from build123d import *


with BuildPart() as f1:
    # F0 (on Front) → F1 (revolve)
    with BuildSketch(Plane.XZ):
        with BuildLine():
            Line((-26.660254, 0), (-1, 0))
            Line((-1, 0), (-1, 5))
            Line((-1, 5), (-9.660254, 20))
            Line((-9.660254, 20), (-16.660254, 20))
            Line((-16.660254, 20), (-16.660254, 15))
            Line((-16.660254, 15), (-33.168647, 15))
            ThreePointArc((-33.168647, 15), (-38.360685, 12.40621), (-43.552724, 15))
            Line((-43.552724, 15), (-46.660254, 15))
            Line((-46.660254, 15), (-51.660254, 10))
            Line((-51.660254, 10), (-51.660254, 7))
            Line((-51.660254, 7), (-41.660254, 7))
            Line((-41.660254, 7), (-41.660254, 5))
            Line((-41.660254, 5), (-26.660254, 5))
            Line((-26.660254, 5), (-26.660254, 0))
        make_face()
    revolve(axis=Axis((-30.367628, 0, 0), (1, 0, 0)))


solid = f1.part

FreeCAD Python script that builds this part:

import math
import FreeCAD as App
import Part
import Sketcher
from FreeCAD import Vector
Q = App.Units.Quantity

doc = App.newDocument("Part")
params = doc.addObject("Spreadsheet::Sheet", "Params")
for row, (alias, value) in enumerate([
    ("sketch1_width", "7 mm"),
    ("sketch1_width2", "10 mm"),
    ("sketch1_width3", "15 mm"),
    ("sketch1_height", "5 mm"),
    ("sketch1_height2", "3 mm"),
    ("revolution_angle", "360 deg"),
], start=1):
    params.set(f"A{row}", alias)
    params.set(f"B{row}", "=" + value)
    params.setAlias(f"B{row}", alias)

body = doc.addObject("PartDesign::Body", "Body")

# Sketch on XZ plane
sketch1 = body.newObject("Sketcher::SketchObject", "Sketch")
sketch1.AttachmentSupport = (doc.getObject("XZ_Plane"), [""])
sketch1.MapMode = "FlatFace"
sketch1.addGeometry(Part.LineSegment(Vector(-26.660254, 0, 0), Vector(-1, 0, 0)), False)
sketch1.addGeometry(Part.LineSegment(Vector(-1, 0, 0), Vector(-1, 5, 0)), False)
sketch1.addGeometry(Part.LineSegment(Vector(-1, 5, 0), Vector(-9.660254, 20, 0)), False)
sketch1.addGeometry(Part.LineSegment(Vector(-9.660254, 20, 0), Vector(-16.660254, 20, 0)), False)
sketch1.addGeometry(Part.LineSegment(Vector(-16.660254, 20, 0), Vector(-16.660254, 15, 0)), False)
sketch1.addGeometry(Part.LineSegment(Vector(-16.660254, 15, 0), Vector(-33.168647, 15, 0)), False)
sketch1.addGeometry(Part.ArcOfCircle(Part.Circle(Vector(-38.360686, 18.899606, 0), Vector(0, 0, 1), 6.493396), math.radians(-143.090735), math.radians(-36.909265)), False)
sketch1.addGeometry(Part.LineSegment(Vector(-43.552724, 15, 0), Vector(-46.660254, 15, 0)), False)
sketch1.addGeometry(Part.LineSegment(Vector(-46.660254, 15, 0), Vector(-51.660254, 10, 0)), False)
sketch1.addGeometry(Part.LineSegment(Vector(-51.660254, 10, 0), Vector(-51.660254, 7, 0)), False)
sketch1.addGeometry(Part.LineSegment(Vector(-51.660254, 7, 0), Vector(-41.660254, 7, 0)), False)
sketch1.addGeometry(Part.LineSegment(Vector(-41.660254, 7, 0), Vector(-41.660254, 5, 0)), False)
sketch1.addGeometry(Part.LineSegment(Vector(-41.660254, 5, 0), Vector(-26.660254, 5, 0)), False)
sketch1.addGeometry(Part.LineSegment(Vector(-26.660254, 5, 0), Vector(-26.660254, 0, 0)), False)
sketch1.addConstraint(Sketcher.Constraint("Coincident", 0, 2, 1, 1))
sketch1.addConstraint(Sketcher.Constraint("Coincident", 1, 2, 2, 1))
sketch1.addConstraint(Sketcher.Constraint("Coincident", 2, 2, 3, 1))
sketch1.addConstraint(Sketcher.Constraint("Coincident", 3, 2, 4, 1))
sketch1.addConstraint(Sketcher.Constraint("Coincident", 4, 2, 5, 1))
sketch1.addConstraint(Sketcher.Constraint("Coincident", 5, 2, 6, 2))
sketch1.addConstraint(Sketcher.Constraint("Coincident", 6, 1, 7, 1))
sketch1.addConstraint(Sketcher.Constraint("Coincident", 7, 2, 8, 1))
sketch1.addConstraint(Sketcher.Constraint("Coincident", 8, 2, 9, 1))
sketch1.addConstraint(Sketcher.Constraint("Coincident", 9, 2, 10, 1))
sketch1.addConstraint(Sketcher.Constraint("Coincident", 10, 2, 11, 1))
sketch1.addConstraint(Sketcher.Constraint("Coincident", 11, 2, 12, 1))
sketch1.addConstraint(Sketcher.Constraint("Coincident", 12, 2, 13, 1))
sketch1.addConstraint(Sketcher.Constraint("Coincident", 13, 2, 0, 1))
sketch1.addConstraint(Sketcher.Constraint("Horizontal", 0))
sketch1.addConstraint(Sketcher.Constraint("Vertical", 1))
sketch1.addConstraint(Sketcher.Constraint("Horizontal", 3))
sketch1.addConstraint(Sketcher.Constraint("Vertical", 4))
sketch1.addConstraint(Sketcher.Constraint("Horizontal", 5))
sketch1.addConstraint(Sketcher.Constraint("Horizontal", 7))
sketch1.addConstraint(Sketcher.Constraint("Vertical", 9))
sketch1.addConstraint(Sketcher.Constraint("Horizontal", 10))
sketch1.addConstraint(Sketcher.Constraint("Vertical", 11))
sketch1.addConstraint(Sketcher.Constraint("Horizontal", 12))
sketch1.addConstraint(Sketcher.Constraint("Vertical", 13))
sketch1.addConstraint(Sketcher.Constraint("PointOnObject", 0, 2, -1))
sketch1.addConstraint(Sketcher.Constraint("Horizontal", 5, 2, 6, 1))
sketch1.addConstraint(Sketcher.Constraint("Horizontal", 1, 2, 11, 2))
sketch1.addConstraint(Sketcher.Constraint("Equal", 1, 4))
sketch1.addConstraint(Sketcher.Constraint("DistanceX", 3, 2, 3, 1, Q("7 mm")))
sketch1.addConstraint(Sketcher.Constraint("DistanceX", 10, 1, 10, 2, Q("10 mm")))
sketch1.addConstraint(Sketcher.Constraint("DistanceX", 12, 1, 12, 2, Q("15 mm")))
sketch1.addConstraint(Sketcher.Constraint("DistanceY", 1, 1, 1, 2, Q("5 mm")))
sketch1.addConstraint(Sketcher.Constraint("DistanceY", 9, 2, 9, 1, Q("3 mm")))
sketch1.addConstraint(Sketcher.Constraint("DistanceY", 11, 2, 11, 1, Q("2 mm")))
sketch1.addConstraint(Sketcher.Constraint("Angle", 2, Q("120 deg")))
sketch1.addConstraint(Sketcher.Constraint("Angle", 8, Q("-135 deg")))
sketch1.addConstraint(Sketcher.Constraint("DistanceX", 0, 2, -1, 1, Q("1 mm")))
sketch1.addConstraint(Sketcher.Constraint("DistanceY", -1, 1, 2, 2, Q("20 mm")))
sketch1.addConstraint(Sketcher.Constraint("DistanceX", 7, 2, 4, 2, Q("30 mm")))
sketch1.addConstraint(Sketcher.Constraint("Radius", 6, Q("6.493396 mm")))
sketch1.addConstraint(Sketcher.Constraint("DistanceX", 7, 2, 7, 1, Q("3.10753 mm")))
sketch1.addConstraint(Sketcher.Constraint("DistanceX", 5, 2, 5, 1, Q("16.508393 mm")))
sketch1.setExpression("Constraints[29]", "Params.sketch1_width")
sketch1.setExpression("Constraints[30]", "Params.sketch1_width2")
sketch1.setExpression("Constraints[31]", "Params.sketch1_width3")
sketch1.setExpression("Constraints[32]", "Params.sketch1_height")
sketch1.setExpression("Constraints[33]", "Params.sketch1_height2")
revolution = body.newObject("PartDesign::Revolution", "Revolution")
revolution.Profile = sketch1
revolution.ReferenceAxis = (sketch1, ["H_Axis"])
revolution.setExpression("Angle", "Params.revolution_angle")

doc.recompute()
